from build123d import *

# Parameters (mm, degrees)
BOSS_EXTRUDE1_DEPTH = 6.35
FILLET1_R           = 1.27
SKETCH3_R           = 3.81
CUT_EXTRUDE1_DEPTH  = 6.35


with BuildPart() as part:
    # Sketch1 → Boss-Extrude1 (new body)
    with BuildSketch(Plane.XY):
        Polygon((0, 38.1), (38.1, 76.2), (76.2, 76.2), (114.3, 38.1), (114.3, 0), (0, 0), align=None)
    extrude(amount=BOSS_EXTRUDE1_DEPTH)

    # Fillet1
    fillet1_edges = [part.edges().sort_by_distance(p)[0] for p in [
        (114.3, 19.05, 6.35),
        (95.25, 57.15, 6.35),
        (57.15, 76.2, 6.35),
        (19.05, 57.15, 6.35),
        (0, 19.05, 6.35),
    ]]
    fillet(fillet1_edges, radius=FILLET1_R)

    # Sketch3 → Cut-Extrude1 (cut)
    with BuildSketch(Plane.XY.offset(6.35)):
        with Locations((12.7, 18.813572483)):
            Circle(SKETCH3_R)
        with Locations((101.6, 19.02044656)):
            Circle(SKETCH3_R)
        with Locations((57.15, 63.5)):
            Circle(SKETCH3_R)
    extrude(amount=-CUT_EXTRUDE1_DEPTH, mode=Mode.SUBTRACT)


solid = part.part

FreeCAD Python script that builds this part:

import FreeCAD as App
import Part
import Sketcher

V = App.Vector
Q = App.Units.Quantity


def edges_at(feature, points):
    """Names of the edges that pass closest to the given points."""
    edges = feature.Shape.Edges
    near = lambda p: min(range(len(edges)), key=lambda i: edges[i].distToShape(Part.Vertex(*p))[0])
    return sorted({f"Edge{near(p) + 1}" for p in points})


def add_polygon(sketch, points):
    """Adds a closed chain of lines whose ends are joined by coincident constraints."""
    first, n = sketch.GeometryCount, len(points)
    for a, b in zip(points, points[1:] + points[:1]):
        sketch.addGeometry(Part.LineSegment(App.Vector(*a, 0), App.Vector(*b, 0)), False)
    for i in range(n):
        sketch.addConstraint(Sketcher.Constraint("Coincident", first + i, 2, first + (i + 1) % n, 1))

doc = App.newDocument("Part")
body = doc.addObject("PartDesign::Body", "Body")

# Sketch on XY plane
sketch1 = body.newObject("Sketcher::SketchObject", "Sketch")
sketch1.AttachmentSupport = (doc.getObject("XY_Plane"), [""])
sketch1.MapMode = "FlatFace"
add_polygon(sketch1, [(38, 76), (0, 38), (0, 0), (114, 0), (114, 38), (76, 76)])  # lines 0-5
sketch1.addConstraint(Sketcher.Constraint("Vertical", 1))
sketch1.addConstraint(Sketcher.Constraint("Horizontal", 2))
sketch1.addConstraint(Sketcher.Constraint("Vertical", 3))
sketch1.addConstraint(Sketcher.Constraint("Horizontal", 5))
sketch1.addConstraint(Sketcher.Constraint("Coincident", 1, 2, -1, 1))
sketch1.addConstraint(Sketcher.Constraint("Perpendicular", 0, 4))
sketch1.addConstraint(Sketcher.Constraint("Horizontal", 0, 2, 3, 2))
sketch1.addConstraint(Sketcher.Constraint("Equal", 5, 1))
sketch1.addConstraint(Sketcher.Constraint("Equal", 0, 4))
sketch1.addConstraint(Sketcher.Constraint("DistanceX", 2, 1, 2, 2, Q("4.5 in")))
sketch1.addConstraint(Sketcher.Constraint("DistanceX", 5, 2, 5, 1, Q("1.5 in")))
pad1 = body.newObject("PartDesign::Pad", "Pad")
pad1.Profile = sketch1
pad1.Length = Q("0.25 in")
doc.recompute()

fillet = body.newObject("PartDesign::Fillet", "Fillet")
fillet.Base = (pad1, edges_at(pad1, [
    (114.3, 19.05, 6.35),
    (95.25, 57.15, 6.35),
    (57.15, 76.2, 6.35),
    (19.05, 57.15, 6.35),
    (0, 19.05, 6.35),
]))
fillet.Radius = Q("0.05 in")

# Sketch on XY plane
sketch2 = body.newObject("Sketcher::SketchObject", "Sketch001")
sketch2.AttachmentSupport = (doc.getObject("XY_Plane"), [""])
sketch2.MapMode = "FlatFace"
sketch2.AttachmentOffset = App.Placement(V(0, 0, 0.25 * 25.4), App.Rotation())
sketch2.addGeometry(Part.Circle(V(12.7, 18.8, 0), V(0, 0, 1), 3.8), False)
sketch2.addGeometry(Part.Circle(V(101.6, 19, 0), V(0, 0, 1), 3.8), False)
sketch2.addGeometry(Part.Circle(V(57.1, 63.5, 0), V(0, 0, 1), 3.8), False)
sketch2.addConstraint(Sketcher.Constraint("Equal", 0, 1))
sketch2.addConstraint(Sketcher.Constraint("Equal", 1, 2))
sketch2.addConstraint(Sketcher.Constraint("Diameter", 0, Q("0.3 in")))
sketch2.addConstraint(Sketcher.Constraint("DistanceX", -1, 1, 1, 3, Q("4 in")))
sketch2.addConstraint(Sketcher.Constraint("DistanceX", -1, 1, 0, 3, Q("0.5 in")))
sketch2.addConstraint(Sketcher.Constraint("DistanceY", -1, 1, 2, 3, Q("2.5 in")))
sketch2.addConstraint(Sketcher.Constraint("DistanceX", -1, 1, 2, 3, Q("2.25 in")))
sketch2.addConstraint(Sketcher.Constraint("DistanceY", -1, 1, 0, 3, 18.813572))
sketch2.addConstraint(Sketcher.Constraint("DistanceY", -1, 1, 1, 3, 19.020447))
pocket1 = body.newObject("PartDesign::Pocket", "Pocket")
pocket1.Profile = sketch2
pocket1.Length = Q("0.25 in")

doc.recompute()
